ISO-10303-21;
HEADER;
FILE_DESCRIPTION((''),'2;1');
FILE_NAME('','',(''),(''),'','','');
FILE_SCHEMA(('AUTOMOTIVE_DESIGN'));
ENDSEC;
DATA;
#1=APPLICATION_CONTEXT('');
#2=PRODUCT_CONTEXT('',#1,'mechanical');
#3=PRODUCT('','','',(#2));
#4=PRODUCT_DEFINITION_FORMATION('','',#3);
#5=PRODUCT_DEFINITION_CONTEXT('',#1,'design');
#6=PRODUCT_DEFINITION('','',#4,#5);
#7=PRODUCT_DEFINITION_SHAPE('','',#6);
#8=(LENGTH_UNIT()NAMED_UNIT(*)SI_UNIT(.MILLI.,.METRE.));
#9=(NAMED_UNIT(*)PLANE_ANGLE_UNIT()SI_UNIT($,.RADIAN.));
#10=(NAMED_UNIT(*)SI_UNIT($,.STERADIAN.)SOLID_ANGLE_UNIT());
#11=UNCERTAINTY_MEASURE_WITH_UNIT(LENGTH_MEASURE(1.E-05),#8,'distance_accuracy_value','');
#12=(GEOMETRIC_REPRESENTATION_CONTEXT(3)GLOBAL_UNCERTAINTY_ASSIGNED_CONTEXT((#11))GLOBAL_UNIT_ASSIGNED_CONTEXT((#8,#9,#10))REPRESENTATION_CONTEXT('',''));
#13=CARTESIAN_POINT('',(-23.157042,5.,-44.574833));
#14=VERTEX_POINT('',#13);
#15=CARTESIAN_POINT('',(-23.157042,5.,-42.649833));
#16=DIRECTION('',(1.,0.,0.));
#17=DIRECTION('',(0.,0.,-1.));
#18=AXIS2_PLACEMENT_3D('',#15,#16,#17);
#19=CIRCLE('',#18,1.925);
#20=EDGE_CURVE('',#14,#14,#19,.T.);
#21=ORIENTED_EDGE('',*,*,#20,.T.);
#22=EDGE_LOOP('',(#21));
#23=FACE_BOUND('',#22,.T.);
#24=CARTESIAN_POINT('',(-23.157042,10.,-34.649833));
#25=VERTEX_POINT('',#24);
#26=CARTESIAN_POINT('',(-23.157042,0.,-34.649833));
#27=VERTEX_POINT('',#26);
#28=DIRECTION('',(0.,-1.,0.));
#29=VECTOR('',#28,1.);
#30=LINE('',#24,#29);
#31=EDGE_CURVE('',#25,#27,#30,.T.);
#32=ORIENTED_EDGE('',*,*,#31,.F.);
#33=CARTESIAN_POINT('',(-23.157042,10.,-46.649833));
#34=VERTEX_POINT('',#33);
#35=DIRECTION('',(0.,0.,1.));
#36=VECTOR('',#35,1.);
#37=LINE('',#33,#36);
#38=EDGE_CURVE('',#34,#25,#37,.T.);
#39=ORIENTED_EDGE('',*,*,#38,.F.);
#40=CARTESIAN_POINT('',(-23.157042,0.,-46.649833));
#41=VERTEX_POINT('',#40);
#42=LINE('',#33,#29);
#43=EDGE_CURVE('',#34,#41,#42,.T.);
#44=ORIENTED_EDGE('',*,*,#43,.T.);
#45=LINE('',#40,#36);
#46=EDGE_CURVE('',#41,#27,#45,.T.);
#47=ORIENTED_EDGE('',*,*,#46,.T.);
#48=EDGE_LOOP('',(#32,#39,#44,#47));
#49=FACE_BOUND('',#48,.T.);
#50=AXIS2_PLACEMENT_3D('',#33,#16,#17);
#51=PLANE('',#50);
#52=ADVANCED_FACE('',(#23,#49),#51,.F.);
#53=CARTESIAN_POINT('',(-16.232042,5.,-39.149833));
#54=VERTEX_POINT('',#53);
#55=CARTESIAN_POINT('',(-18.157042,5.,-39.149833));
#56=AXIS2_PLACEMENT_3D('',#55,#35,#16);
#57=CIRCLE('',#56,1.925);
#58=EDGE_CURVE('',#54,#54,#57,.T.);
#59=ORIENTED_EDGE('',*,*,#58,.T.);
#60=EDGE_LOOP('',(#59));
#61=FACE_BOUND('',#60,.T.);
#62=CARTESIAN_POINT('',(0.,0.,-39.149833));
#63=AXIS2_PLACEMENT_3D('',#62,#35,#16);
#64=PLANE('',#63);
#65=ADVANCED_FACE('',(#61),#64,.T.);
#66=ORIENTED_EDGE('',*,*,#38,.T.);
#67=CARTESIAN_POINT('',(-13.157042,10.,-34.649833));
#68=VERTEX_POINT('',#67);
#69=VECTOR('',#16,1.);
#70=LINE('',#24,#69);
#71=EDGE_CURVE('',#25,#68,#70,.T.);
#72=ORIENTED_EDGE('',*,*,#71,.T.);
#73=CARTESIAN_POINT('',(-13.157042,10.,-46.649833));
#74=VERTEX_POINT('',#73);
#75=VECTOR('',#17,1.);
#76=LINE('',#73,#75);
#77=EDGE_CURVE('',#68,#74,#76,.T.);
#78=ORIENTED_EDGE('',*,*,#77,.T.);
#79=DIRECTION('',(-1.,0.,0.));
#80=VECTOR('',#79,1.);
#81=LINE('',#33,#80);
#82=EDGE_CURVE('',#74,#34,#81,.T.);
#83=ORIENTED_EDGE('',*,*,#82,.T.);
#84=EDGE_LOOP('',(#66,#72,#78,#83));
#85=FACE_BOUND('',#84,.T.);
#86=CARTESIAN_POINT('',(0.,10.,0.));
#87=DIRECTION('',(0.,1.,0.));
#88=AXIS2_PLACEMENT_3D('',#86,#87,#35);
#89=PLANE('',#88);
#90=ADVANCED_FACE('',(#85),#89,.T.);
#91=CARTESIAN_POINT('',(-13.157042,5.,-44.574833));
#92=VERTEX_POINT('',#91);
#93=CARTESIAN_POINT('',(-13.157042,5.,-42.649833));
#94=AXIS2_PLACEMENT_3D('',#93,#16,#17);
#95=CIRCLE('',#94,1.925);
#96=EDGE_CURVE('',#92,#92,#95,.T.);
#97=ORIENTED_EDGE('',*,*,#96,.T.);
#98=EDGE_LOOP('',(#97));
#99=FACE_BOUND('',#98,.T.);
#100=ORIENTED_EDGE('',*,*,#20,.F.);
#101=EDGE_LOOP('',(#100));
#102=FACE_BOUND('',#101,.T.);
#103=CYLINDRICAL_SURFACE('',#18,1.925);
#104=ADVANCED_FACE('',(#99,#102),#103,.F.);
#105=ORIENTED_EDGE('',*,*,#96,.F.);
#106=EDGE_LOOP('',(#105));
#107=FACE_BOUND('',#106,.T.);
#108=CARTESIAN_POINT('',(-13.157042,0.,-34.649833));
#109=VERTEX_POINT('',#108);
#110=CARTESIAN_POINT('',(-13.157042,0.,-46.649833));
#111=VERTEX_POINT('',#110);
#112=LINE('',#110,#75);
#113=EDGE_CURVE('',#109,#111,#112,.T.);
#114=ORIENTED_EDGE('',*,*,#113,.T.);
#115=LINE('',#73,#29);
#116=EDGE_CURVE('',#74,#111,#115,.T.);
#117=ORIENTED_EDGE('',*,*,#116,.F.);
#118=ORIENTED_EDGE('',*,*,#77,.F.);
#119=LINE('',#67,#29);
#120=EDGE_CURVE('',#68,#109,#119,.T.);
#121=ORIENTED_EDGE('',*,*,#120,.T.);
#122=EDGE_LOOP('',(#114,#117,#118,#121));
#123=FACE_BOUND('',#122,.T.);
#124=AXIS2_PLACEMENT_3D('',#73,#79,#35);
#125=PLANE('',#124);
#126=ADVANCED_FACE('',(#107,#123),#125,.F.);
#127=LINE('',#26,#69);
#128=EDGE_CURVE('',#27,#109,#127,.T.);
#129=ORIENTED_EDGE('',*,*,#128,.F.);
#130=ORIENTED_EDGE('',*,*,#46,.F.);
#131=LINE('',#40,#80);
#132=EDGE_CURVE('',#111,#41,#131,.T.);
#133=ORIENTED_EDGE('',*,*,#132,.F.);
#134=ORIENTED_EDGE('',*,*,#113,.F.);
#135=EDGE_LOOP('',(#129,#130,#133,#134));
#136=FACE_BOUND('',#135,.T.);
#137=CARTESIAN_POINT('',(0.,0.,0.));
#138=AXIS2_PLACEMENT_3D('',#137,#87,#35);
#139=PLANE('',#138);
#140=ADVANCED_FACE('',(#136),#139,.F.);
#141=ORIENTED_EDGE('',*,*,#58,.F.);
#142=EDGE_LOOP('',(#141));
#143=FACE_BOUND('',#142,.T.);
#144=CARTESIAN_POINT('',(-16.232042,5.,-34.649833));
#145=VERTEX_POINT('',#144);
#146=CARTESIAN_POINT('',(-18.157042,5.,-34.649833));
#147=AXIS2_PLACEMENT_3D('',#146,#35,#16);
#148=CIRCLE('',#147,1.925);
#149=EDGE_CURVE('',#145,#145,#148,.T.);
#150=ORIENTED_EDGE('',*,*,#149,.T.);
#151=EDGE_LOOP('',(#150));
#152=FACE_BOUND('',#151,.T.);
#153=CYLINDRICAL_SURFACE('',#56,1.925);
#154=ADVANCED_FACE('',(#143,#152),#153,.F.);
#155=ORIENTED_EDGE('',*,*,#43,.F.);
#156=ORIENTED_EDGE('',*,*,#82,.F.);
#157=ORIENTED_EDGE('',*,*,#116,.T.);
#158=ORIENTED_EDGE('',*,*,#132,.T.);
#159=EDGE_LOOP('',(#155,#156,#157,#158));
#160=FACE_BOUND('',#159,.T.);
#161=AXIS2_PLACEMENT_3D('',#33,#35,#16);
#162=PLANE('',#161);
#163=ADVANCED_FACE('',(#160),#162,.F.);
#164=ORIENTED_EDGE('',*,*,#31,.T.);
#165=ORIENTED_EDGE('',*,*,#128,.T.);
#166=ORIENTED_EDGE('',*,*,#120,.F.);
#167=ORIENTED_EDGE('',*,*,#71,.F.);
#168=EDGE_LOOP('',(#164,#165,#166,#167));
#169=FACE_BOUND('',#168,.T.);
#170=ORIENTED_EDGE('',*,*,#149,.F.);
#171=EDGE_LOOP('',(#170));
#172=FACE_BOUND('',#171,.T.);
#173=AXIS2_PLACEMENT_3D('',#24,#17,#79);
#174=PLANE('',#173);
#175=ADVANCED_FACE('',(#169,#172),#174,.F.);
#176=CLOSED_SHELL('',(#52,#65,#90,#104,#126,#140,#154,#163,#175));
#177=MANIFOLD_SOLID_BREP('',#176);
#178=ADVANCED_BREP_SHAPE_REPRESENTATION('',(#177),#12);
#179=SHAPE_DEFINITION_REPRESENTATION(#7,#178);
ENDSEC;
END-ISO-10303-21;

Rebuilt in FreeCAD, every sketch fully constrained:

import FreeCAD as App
import Part
import Sketcher

V = App.Vector


def add_polygon(sketch, points):
    """Adds a closed chain of lines whose ends are joined by coincident constraints."""
    first, n = sketch.GeometryCount, len(points)
    for a, b in zip(points, points[1:] + points[:1]):
        sketch.addGeometry(Part.LineSegment(App.Vector(*a, 0), App.Vector(*b, 0)), False)
    for i in range(n):
        sketch.addConstraint(Sketcher.Constraint("Coincident", first + i, 2, first + (i + 1) % n, 1))

doc = App.newDocument("Part")
params = doc.addObject("Spreadsheet::Sheet", "Params")
for row, (alias, value) in enumerate([
    ("sketch1_width", "10 mm"),
    ("sketch1_height", "12 mm"),
    ("pad1_length", "10 mm"),
    ("sketch2_diameter", "3.85 mm"),
    ("pocket1_length", "4.5 mm"),
    ("sketch3_diameter", "3.85 mm"),
    ("pocket2_length", "10 mm"),
], start=1):
    params.set(f"A{row}", alias)
    params.set(f"B{row}", "=" + value)
    params.setAlias(f"B{row}", alias)

body = doc.addObject("PartDesign::Body", "Body")

# Sketch on XZ plane
sketch1 = body.newObject("Sketcher::SketchObject", "Sketch")
sketch1.AttachmentSupport = (doc.getObject("XZ_Plane"), [""])
sketch1.MapMode = "FlatFace"
add_polygon(sketch1, [(-23.157042, -46.649833), (-23.157042, -34.649833), (-13.157042, -34.649833), (-13.157042, -46.649833)])  # lines 0-3
sketch1.addConstraint([
    Sketcher.Constraint("Vertical", 0),
    Sketcher.Constraint("Horizontal", 1),
    Sketcher.Constraint("Vertical", 2),
    Sketcher.Constraint("Horizontal", 3),
    Sketcher.Constraint("DistanceX", 1, 1, 1, 2, 10.0),
    Sketcher.Constraint("DistanceY", 0, 1, 0, 2, 12.0),
    Sketcher.Constraint("DistanceX", 0, 2, -1, 1, 23.157042),
    Sketcher.Constraint("DistanceY", 0, 2, -1, 1, 34.649833),
])
sketch1.setExpression("Constraints[8]", "Params.sketch1_width")
sketch1.setExpression("Constraints[9]", "Params.sketch1_height")
pad1 = body.newObject("PartDesign::Pad", "Pad")
pad1.Profile = sketch1
pad1.setExpression("Length", "Params.pad1_length")
pad1.Reversed = True

# Sketch on XY plane
sketch2 = body.newObject("Sketcher::SketchObject", "Sketch001")
sketch2.AttachmentSupport = (doc.getObject("XY_Plane"), [""])
sketch2.MapMode = "FlatFace"
sketch2.AttachmentOffset = App.Placement(V(0, 0, -34.649833), App.Rotation())
sketch2.addGeometry(Part.Circle(V(-18.157042, 5, 0), V(0, 0, 1), 1.925), False)
sketch2.addConstraint([
    Sketcher.Constraint("Diameter", 0, 3.85),
    Sketcher.Constraint("DistanceY", -1, 1, 0, 3, 5.0),
    Sketcher.Constraint("DistanceX", 0, 3, -1, 1, 18.157042),
])
sketch2.setExpression("Constraints[0]", "Params.sketch2_diameter")
pocket1 = body.newObject("PartDesign::Pocket", "Pocket")
pocket1.Profile = sketch2
pocket1.setExpression("Length", "Params.pocket1_length")

# Sketch on YZ plane
sketch3 = body.newObject("Sketcher::SketchObject", "Sketch002")
sketch3.AttachmentSupport = (doc.getObject("YZ_Plane"), [""])
sketch3.MapMode = "FlatFace"
sketch3.AttachmentOffset = App.Placement(V(0, 0, -13.157042), App.Rotation())
sketch3.addGeometry(Part.Circle(V(5, -42.649833, 0), V(0, 0, 1), 1.925), False)
sketch3.addConstraint([
    Sketcher.Constraint("Diameter", 0, 3.85),
    Sketcher.Constraint("DistanceX", -1, 1, 0, 3, 5.0),
    Sketcher.Constraint("DistanceY", 0, 3, -1, 1, 42.649833),
])
sketch3.setExpression("Constraints[0]", "Params.sketch3_diameter")
pocket2 = body.newObject("PartDesign::Pocket", "Pocket001")
pocket2.Profile = sketch3
pocket2.setExpression("Length", "Params.pocket2_length")

doc.recompute()
